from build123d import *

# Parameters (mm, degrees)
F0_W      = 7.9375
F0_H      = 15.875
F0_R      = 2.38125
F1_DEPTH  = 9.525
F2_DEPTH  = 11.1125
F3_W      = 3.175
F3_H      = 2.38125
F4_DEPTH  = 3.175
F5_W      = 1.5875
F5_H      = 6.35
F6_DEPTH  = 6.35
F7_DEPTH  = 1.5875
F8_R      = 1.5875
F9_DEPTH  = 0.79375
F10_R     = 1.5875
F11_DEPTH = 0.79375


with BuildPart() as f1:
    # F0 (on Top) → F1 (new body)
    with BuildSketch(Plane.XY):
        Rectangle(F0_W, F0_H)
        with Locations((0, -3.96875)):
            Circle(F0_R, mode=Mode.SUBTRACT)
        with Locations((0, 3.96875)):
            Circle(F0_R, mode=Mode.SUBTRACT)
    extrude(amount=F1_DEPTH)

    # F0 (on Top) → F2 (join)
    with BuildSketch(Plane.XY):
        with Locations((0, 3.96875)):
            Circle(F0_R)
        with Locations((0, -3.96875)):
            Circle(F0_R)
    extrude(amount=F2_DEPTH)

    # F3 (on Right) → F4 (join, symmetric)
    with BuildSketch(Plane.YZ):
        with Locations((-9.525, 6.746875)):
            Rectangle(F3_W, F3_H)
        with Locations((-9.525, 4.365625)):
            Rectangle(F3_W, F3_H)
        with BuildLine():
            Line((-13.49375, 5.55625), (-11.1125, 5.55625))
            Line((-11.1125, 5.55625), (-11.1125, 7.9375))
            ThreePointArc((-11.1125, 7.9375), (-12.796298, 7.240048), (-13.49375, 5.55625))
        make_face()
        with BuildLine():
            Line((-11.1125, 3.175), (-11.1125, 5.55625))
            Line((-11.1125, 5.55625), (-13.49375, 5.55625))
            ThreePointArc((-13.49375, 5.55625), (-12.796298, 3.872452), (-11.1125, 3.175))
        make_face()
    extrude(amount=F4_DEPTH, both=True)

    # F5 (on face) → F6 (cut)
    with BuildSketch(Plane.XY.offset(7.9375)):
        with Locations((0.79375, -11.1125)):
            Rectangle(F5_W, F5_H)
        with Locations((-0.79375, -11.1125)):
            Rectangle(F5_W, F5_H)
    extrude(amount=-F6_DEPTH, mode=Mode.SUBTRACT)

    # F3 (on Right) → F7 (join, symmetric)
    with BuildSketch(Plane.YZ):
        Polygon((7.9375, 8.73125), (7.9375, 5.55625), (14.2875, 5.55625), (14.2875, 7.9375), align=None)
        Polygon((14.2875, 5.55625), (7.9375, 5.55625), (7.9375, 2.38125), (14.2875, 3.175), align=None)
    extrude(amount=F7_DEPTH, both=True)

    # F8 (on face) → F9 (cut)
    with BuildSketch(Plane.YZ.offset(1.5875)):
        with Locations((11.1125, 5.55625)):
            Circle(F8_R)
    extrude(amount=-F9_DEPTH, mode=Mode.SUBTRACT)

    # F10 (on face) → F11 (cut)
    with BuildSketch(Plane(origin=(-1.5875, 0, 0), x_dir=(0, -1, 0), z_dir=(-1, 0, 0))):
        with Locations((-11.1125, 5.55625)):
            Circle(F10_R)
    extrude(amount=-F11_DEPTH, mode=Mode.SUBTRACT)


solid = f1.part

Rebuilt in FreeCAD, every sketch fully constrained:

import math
import FreeCAD as App
import Part
import Sketcher

V = App.Vector
Q = App.Units.Quantity


def add_polygon(sketch, points):
    """Adds a closed chain of lines whose ends are joined by coincident constraints."""
    first, n = sketch.GeometryCount, len(points)
    for a, b in zip(points, points[1:] + points[:1]):
        sketch.addGeometry(Part.LineSegment(App.Vector(*a, 0), App.Vector(*b, 0)), False)
    for i in range(n):
        sketch.addConstraint(Sketcher.Constraint("Coincident", first + i, 2, first + (i + 1) % n, 1))

doc = App.newDocument("Part")
body = doc.addObject("PartDesign::Body", "Body")

# Sketch on XY plane
sketch1 = body.newObject("Sketcher::SketchObject", "Sketch")
sketch1.AttachmentSupport = (doc.getObject("XY_Plane"), [""])
sketch1.MapMode = "FlatFace"
add_polygon(sketch1, [(-4, 7.9), (-4, -7.9), (4, -7.9), (4, 7.9)])  # lines 0-3
sketch1.addGeometry(Part.Circle(V(0, -4, 0), V(0, 0, 1), 2.4), False)  # 4
sketch1.addGeometry(Part.Circle(V(0, 4, 0), V(0, 0, 1), 2.4), False)  # 5
sketch1.addConstraint([
    Sketcher.Constraint("Vertical", 0),
    Sketcher.Constraint("Horizontal", 1),
    Sketcher.Constraint("Vertical", 2),
    Sketcher.Constraint("Horizontal", 3),
    Sketcher.Constraint("Equal", 4, 5),
    Sketcher.Constraint("Symmetric", 4, 3, 5, 3, -1, 1),
    Sketcher.Constraint("Symmetric", 0, 2, 2, 2, -1, 1),
    Sketcher.Constraint("PointOnObject", 4, 3, -2),
    Sketcher.Constraint("Diameter", 4, Q("0.1875 in")),
    Sketcher.Constraint("DistanceX", 1, 1, 1, 2, Q("0.3125 in")),
    Sketcher.Constraint("DistanceY", 0, 2, 0, 1, Q("0.625 in")),
    Sketcher.Constraint("DistanceY", 4, 3, -1, 1, Q("0.15625 in")),
])
pad1 = body.newObject("PartDesign::Pad", "Pad")
pad1.Profile = sketch1
pad1.Length = Q("0.375 in")

# Sketch on XY plane
sketch2 = body.newObject("Sketcher::SketchObject", "Sketch001")
sketch2.AttachmentSupport = (doc.getObject("XY_Plane"), [""])
sketch2.MapMode = "FlatFace"
sketch2.addGeometry([
    Part.Circle(V(0, 4, 0), V(0, 0, 1), 2.4),
    Part.Circle(V(0, -4, 0), V(0, 0, 1), 2.4),
], False)
sketch2.addConstraint([
    Sketcher.Constraint("Equal", 0, 1),
    Sketcher.Constraint("Symmetric", 0, 3, 1, 3, -1, 1),
    Sketcher.Constraint("PointOnObject", 0, 3, -2),
    Sketcher.Constraint("Diameter", 0, Q("0.1875 in")),
    Sketcher.Constraint("DistanceY", -1, 1, 0, 3, Q("0.15625 in")),
])
pad2 = body.newObject("PartDesign::Pad", "Pad001")
pad2.Profile = sketch2
pad2.Length = Q("0.4375 in")

# Sketch on YZ plane
sketch3 = body.newObject("Sketcher::SketchObject", "Sketch002")
sketch3.AttachmentSupport = (doc.getObject("YZ_Plane"), [""])
sketch3.MapMode = "FlatFace"
sketch3.addGeometry([
    Part.LineSegment(V(-11.1, 3.2, 0), V(-7.9, 3.2, 0)),  # 0
    Part.LineSegment(V(-7.9, 3.2, 0), V(-7.9, 7.9, 0)),  # 1
    Part.LineSegment(V(-7.9, 7.9, 0), V(-11.1, 7.9, 0)),  # 2
    Part.ArcOfCircle(Part.Circle(V(-11.1, 5.6, 0), V(0, 0, 1), 2.4), math.radians(90), math.radians(180)),  # 3
    Part.ArcOfCircle(Part.Circle(V(-11.1, 5.6, 0), V(0, 0, 1), 2.4), math.radians(-180), math.radians(-90)),  # 4
], False)
sketch3.addConstraint([
    Sketcher.Constraint("Coincident", 0, 2, 1, 1),
    Sketcher.Constraint("Coincident", 1, 2, 2, 1),
    Sketcher.Constraint("Tangent", 2, 2, 3, 1),
    Sketcher.Constraint("Tangent", 3, 2, 4, 1),
    Sketcher.Constraint("Tangent", 4, 2, 0, 1),
    Sketcher.Constraint("Horizontal", 0),
    Sketcher.Constraint("Vertical", 1),
    Sketcher.Constraint("Horizontal", 2),
    Sketcher.Constraint("Equal", 3, 4),
    Sketcher.Constraint("Horizontal", 4, 3, 3, 2),
    Sketcher.Constraint("Radius", 3, Q("0.09375 in")),
    Sketcher.Constraint("DistanceX", 0, 1, 0, 2, Q("0.125 in")),
    Sketcher.Constraint("DistanceX", 3, 3, -1, 1, Q("0.4375 in")),
    Sketcher.Constraint("DistanceY", -1, 1, 3, 3, Q("0.21875 in")),
])
pad3 = body.newObject("PartDesign::Pad", "Pad002")
pad3.Profile = sketch3
pad3.Length = Q("0.25 in")
pad3.Midplane = True

# Sketch on XY plane
sketch4 = body.newObject("Sketcher::SketchObject", "Sketch003")
sketch4.AttachmentSupport = (doc.getObject("XY_Plane"), [""])
sketch4.MapMode = "FlatFace"
sketch4.AttachmentOffset = App.Placement(V(0, 0, 0.3125 * 25.4), App.Rotation())
add_polygon(sketch4, [(1.6, -14.3), (1.6, -7.9), (-1.6, -7.9), (-1.6, -14.3)])  # lines 0-3
sketch4.addConstraint([
    Sketcher.Constraint("Vertical", 0),
    Sketcher.Constraint("Horizontal", 1),
    Sketcher.Constraint("Vertical", 2),
    Sketcher.Constraint("Horizontal", 3),
    Sketcher.Constraint("DistanceY", 0, 1, 0, 2, Q("0.25 in")),
    Sketcher.Constraint("DistanceX", 1, 2, 1, 1, Q("0.125 in")),
    Sketcher.Constraint("DistanceX", -1, 1, 0, 2, Q("0.0625 in")),
    Sketcher.Constraint("DistanceY", 0, 2, -1, 1, Q("0.3125 in")),
])
pocket1 = body.newObject("PartDesign::Pocket", "Pocket")
pocket1.Profile = sketch4
pocket1.Length = Q("0.25 in")

# Sketch on YZ plane
sketch5 = body.newObject("Sketcher::SketchObject", "Sketch004")
sketch5.AttachmentSupport = (doc.getObject("YZ_Plane"), [""])
sketch5.MapMode = "FlatFace"
add_polygon(sketch5, [(7.9, 8.7), (7.9, 2.4), (14.3, 3.2), (14.3, 7.9)])  # lines 0-3
sketch5.addConstraint([
    Sketcher.Constraint("Vertical", 0),
    Sketcher.Constraint("Vertical", 2),
    Sketcher.Constraint("Equal", 1, 3),
    Sketcher.Constraint("DistanceY", 0, 2, 0, 1, Q("0.25 in")),
    Sketcher.Constraint("DistanceY", 2, 1, 2, 2, Q("0.1875 in")),
    Sketcher.Constraint("DistanceX", 0, 2, 1, 2, Q("0.25 in")),
    Sketcher.Constraint("DistanceX", -1, 1, 0, 2, Q("0.3125 in")),
    Sketcher.Constraint("DistanceY", -1, 1, 0, 2, Q("0.09375 in")),
])
pad4 = body.newObject("PartDesign::Pad", "Pad003")
pad4.Profile = sketch5
pad4.Length = Q("0.125 in")
pad4.Midplane = True

# Sketch on YZ plane
sketch6 = body.newObject("Sketcher::SketchObject", "Sketch005")
sketch6.AttachmentSupport = (doc.getObject("YZ_Plane"), [""])
sketch6.MapMode = "FlatFace"
sketch6.AttachmentOffset = App.Placement(V(0, 0, 0.0625 * 25.4), App.Rotation())
sketch6.addGeometry(Part.Circle(V(11.1, 5.6, 0), V(0, 0, 1), 1.6), False)
sketch6.addConstraint([
    Sketcher.Constraint("Diameter", 0, Q("0.125 in")),
    Sketcher.Constraint("DistanceX", -1, 1, 0, 3, Q("0.4375 in")),
    Sketcher.Constraint("DistanceY", -1, 1, 0, 3, Q("0.21875 in")),
])
pocket2 = body.newObject("PartDesign::Pocket", "Pocket001")
pocket2.Profile = sketch6
pocket2.Length = Q("0.03125 in")

# Sketch on YZ plane
sketch7 = body.newObject("Sketcher::SketchObject", "Sketch006")
sketch7.AttachmentSupport = (doc.getObject("YZ_Plane"), [""])
sketch7.MapMode = "FlatFace"
sketch7.AttachmentOffset = App.Placement(V(0, 0, -0.0625 * 25.4), App.Rotation())
sketch7.addGeometry(Part.Circle(V(11.1, 5.6, 0), V(0, 0, 1), 1.6), False)
sketch7.addConstraint([
    Sketcher.Constraint("Diameter", 0, Q("0.125 in")),
    Sketcher.Constraint("DistanceX", -1, 1, 0, 3, Q("0.4375 in")),
    Sketcher.Constraint("DistanceY", -1, 1, 0, 3, Q("0.21875 in")),
])
pocket3 = body.newObject("PartDesign::Pocket", "Pocket002")
pocket3.Profile = sketch7
pocket3.Length = Q("0.03125 in")
pocket3.Reversed = True

doc.recompute()
